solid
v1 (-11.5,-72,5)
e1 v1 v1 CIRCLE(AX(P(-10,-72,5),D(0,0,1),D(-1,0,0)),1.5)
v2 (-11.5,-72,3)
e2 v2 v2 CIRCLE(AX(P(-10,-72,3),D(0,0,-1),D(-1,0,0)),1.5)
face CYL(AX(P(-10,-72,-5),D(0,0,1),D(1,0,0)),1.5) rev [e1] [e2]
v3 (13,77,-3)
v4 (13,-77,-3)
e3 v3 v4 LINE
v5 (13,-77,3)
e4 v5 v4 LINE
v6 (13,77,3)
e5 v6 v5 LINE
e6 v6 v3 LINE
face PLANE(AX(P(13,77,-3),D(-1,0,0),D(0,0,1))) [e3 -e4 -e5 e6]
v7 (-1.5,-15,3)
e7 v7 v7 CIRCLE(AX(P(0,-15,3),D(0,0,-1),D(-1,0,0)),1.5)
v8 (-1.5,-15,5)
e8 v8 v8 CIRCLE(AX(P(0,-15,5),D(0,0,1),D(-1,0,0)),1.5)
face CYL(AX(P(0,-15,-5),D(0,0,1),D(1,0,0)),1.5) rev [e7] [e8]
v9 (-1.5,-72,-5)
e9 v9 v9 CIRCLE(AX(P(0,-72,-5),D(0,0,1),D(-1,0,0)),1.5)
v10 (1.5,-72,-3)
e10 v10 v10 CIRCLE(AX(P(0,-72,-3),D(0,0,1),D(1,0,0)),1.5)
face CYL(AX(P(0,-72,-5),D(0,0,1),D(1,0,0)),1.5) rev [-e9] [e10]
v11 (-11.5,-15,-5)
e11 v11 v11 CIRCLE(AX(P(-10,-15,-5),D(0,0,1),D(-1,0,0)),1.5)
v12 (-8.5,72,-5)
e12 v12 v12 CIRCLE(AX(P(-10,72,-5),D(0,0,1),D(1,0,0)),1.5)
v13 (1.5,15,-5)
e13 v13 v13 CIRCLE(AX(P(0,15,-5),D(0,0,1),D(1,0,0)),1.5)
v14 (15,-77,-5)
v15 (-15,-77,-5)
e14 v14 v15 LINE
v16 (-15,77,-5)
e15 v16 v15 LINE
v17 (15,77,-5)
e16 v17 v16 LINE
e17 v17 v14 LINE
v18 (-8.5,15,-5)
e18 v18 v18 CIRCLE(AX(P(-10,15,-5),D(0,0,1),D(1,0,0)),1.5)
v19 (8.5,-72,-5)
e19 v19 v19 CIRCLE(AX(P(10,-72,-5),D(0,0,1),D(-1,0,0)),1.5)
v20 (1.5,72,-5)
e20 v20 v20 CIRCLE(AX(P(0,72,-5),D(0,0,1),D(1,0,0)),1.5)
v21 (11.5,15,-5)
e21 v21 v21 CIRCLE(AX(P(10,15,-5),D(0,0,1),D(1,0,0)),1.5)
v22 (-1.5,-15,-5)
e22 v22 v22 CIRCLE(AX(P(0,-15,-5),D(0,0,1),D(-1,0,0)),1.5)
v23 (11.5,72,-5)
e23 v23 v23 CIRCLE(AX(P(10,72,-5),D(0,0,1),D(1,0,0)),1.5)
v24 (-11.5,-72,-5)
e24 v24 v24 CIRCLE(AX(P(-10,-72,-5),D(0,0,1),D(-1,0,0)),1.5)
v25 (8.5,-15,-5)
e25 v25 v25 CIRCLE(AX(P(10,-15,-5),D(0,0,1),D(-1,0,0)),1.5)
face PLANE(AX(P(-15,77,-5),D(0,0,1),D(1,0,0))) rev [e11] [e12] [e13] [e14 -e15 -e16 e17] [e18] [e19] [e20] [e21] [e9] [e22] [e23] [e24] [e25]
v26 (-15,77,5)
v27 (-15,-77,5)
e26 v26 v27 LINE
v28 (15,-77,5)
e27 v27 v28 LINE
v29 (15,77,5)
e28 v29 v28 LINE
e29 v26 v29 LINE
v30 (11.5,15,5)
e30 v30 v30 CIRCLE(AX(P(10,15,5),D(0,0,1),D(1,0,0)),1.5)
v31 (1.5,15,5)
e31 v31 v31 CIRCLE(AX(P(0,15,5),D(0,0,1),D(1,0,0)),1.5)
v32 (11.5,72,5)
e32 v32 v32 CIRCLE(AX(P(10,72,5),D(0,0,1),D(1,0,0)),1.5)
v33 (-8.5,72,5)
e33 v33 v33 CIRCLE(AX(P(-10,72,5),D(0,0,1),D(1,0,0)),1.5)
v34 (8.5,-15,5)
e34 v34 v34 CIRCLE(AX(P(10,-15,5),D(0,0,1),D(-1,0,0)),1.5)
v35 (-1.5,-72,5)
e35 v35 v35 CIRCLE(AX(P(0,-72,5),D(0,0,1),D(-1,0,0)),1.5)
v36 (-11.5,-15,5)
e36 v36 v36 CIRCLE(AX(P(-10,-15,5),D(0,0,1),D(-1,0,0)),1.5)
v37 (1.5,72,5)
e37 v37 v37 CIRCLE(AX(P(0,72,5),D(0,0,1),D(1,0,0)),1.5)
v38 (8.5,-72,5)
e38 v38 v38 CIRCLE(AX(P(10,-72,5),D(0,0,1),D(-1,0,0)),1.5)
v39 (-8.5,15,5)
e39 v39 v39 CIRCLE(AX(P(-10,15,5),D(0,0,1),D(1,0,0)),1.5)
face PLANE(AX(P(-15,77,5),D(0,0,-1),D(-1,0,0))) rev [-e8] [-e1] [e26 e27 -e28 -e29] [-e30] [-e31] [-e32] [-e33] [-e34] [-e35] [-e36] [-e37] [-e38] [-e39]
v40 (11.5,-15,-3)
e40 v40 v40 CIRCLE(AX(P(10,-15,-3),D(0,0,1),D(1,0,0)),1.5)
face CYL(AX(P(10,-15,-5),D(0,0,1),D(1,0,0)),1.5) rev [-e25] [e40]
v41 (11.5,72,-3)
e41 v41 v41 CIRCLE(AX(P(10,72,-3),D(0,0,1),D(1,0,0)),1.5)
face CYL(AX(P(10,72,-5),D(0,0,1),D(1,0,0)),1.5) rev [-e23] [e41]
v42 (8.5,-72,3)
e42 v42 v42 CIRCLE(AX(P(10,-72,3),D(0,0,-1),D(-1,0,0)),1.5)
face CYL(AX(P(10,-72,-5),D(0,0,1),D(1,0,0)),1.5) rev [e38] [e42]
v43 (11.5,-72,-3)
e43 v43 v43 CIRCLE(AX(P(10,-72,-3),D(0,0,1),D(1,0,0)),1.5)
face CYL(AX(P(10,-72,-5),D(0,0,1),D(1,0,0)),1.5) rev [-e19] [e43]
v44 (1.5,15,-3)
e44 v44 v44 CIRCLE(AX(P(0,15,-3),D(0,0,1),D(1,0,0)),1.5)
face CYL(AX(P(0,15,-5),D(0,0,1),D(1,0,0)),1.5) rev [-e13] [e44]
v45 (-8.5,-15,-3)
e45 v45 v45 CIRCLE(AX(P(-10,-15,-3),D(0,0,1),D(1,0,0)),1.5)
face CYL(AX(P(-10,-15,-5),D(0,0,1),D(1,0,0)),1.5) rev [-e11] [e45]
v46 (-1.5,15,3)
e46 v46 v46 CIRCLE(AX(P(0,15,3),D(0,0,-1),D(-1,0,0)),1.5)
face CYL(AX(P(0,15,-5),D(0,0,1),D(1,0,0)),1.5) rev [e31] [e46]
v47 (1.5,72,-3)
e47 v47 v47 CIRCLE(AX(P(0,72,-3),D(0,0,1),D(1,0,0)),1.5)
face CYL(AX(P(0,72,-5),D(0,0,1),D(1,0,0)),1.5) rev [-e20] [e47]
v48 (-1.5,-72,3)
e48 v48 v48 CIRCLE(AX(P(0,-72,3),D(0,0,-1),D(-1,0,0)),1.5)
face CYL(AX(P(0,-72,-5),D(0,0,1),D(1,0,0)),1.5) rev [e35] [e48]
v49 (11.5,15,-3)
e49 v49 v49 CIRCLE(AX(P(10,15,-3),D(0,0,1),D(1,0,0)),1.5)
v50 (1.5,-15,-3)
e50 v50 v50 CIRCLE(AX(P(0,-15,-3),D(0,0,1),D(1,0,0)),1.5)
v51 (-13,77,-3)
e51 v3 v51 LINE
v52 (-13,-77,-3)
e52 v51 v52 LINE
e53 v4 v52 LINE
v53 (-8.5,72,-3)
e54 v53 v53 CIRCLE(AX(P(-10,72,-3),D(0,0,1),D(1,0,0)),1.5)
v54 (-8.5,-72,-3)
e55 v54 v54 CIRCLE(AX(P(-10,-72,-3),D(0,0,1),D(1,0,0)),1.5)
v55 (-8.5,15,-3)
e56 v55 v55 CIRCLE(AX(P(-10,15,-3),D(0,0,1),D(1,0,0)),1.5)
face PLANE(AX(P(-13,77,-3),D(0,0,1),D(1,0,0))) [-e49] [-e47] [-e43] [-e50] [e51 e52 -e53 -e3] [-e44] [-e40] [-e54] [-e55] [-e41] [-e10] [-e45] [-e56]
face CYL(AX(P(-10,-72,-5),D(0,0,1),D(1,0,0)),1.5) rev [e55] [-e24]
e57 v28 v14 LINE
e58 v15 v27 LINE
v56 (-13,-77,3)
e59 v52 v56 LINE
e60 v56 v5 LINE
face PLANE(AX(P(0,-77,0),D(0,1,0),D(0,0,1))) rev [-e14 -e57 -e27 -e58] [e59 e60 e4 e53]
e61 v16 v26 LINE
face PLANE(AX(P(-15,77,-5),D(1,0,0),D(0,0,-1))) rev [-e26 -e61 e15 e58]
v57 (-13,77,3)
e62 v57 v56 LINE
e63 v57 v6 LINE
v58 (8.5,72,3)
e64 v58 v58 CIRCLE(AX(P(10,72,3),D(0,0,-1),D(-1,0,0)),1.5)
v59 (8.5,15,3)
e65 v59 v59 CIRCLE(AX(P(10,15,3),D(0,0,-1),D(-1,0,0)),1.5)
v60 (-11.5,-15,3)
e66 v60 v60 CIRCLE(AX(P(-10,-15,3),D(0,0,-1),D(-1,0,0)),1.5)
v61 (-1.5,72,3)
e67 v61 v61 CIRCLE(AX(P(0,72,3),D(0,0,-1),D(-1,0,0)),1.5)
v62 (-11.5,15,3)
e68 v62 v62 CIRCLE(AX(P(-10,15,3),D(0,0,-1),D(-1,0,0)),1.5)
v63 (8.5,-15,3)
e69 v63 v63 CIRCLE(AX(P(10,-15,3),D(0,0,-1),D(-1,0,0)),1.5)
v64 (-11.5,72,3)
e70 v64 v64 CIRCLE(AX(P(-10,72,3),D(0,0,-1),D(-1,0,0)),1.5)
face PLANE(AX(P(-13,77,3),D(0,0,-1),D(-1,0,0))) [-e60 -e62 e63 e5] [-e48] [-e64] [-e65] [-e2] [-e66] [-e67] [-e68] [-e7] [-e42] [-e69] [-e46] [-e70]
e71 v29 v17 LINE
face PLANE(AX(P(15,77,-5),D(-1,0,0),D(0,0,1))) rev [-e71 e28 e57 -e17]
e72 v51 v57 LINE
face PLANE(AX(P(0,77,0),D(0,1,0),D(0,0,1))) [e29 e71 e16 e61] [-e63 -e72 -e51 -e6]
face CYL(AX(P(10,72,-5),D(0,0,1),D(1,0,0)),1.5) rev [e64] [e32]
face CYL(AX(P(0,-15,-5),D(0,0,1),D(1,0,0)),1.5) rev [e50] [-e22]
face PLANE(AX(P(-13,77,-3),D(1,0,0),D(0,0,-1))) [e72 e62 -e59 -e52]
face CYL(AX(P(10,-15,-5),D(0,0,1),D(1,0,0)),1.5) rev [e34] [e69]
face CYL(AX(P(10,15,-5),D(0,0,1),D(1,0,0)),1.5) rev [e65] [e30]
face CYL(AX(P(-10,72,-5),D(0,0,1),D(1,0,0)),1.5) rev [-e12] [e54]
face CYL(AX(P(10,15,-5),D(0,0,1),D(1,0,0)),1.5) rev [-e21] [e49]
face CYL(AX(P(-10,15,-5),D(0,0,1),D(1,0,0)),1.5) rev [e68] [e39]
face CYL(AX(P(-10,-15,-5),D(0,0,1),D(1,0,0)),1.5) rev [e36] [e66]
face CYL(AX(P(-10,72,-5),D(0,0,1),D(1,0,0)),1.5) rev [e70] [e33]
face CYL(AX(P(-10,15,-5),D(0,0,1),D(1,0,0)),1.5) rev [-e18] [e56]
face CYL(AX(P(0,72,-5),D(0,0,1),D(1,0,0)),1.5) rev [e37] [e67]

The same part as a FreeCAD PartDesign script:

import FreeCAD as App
import Part
import Sketcher
from FreeCAD import Vector
Q = App.Units.Quantity


def add_polygon(sketch, points):
    """Adds a closed chain of lines whose ends are joined by coincident constraints."""
    first, n = sketch.GeometryCount, len(points)
    for a, b in zip(points, points[1:] + points[:1]):
        sketch.addGeometry(Part.LineSegment(App.Vector(*a, 0), App.Vector(*b, 0)), False)
    for i in range(n):
        sketch.addConstraint(Sketcher.Constraint("Coincident", first + i, 2, first + (i + 1) % n, 1))

doc = App.newDocument("Part")
params = doc.addObject("Spreadsheet::Sheet", "Params")
for row, (alias, value) in enumerate([
    ("sketch1_width", "30 mm"),
    ("sketch1_width2", "26 mm"),
    ("sketch1_height", "10 mm"),
    ("sketch1_height2", "6 mm"),
    ("pad1_length", "154 mm"),
    ("sketch2_diameter", "3 mm"),
], start=1):
    params.set(f"A{row}", alias)
    params.set(f"B{row}", "=" + value)
    params.setAlias(f"B{row}", alias)

body = doc.addObject("PartDesign::Body", "Body")

# Sketch on XZ plane
sketch1 = doc.addObject("Sketcher::SketchObject", "Sketch")
body.addObject(sketch1)
sketch1.AttachmentSupport = (doc.XZ_Plane, [""])
sketch1.MapMode = "FlatFace"
add_polygon(sketch1, [(-15, -5), (-15, 5), (15, 5), (15, -5)])  # lines 0-3
add_polygon(sketch1, [(13, 3), (-13, 3), (-13, -3), (13, -3)])  # lines 4-7
sketch1.addConstraint([
    Sketcher.Constraint("Vertical", 0),
    Sketcher.Constraint("Horizontal", 1),
    Sketcher.Constraint("Vertical", 2),
    Sketcher.Constraint("Horizontal", 3),
    Sketcher.Constraint("Horizontal", 4),
    Sketcher.Constraint("Vertical", 5),
    Sketcher.Constraint("Horizontal", 6),
    Sketcher.Constraint("Vertical", 7),
    Sketcher.Constraint("Symmetric", 0, 2, 2, 2, -1, 1),
    Sketcher.Constraint("Symmetric", 4, 2, 6, 2, -1, 1),
    Sketcher.Constraint("DistanceX", 1, 1, 1, 2, Q("30 mm")),
    Sketcher.Constraint("DistanceX", 4, 2, 4, 1, Q("26 mm")),
    Sketcher.Constraint("DistanceY", 0, 1, 0, 2, Q("10 mm")),
    Sketcher.Constraint("DistanceY", 5, 2, 5, 1, Q("6 mm")),
])
sketch1.setExpression("Constraints[18]", "Params.sketch1_width")
sketch1.setExpression("Constraints[19]", "Params.sketch1_width2")
sketch1.setExpression("Constraints[20]", "Params.sketch1_height")
sketch1.setExpression("Constraints[21]", "Params.sketch1_height2")
pad1 = doc.addObject("PartDesign::Pad", "Pad")
body.addObject(pad1)
pad1.Profile = sketch1
pad1.setExpression("Length", "Params.pad1_length")
pad1.Midplane = True

# Sketch on XY plane
sketch2 = doc.addObject("Sketcher::SketchObject", "Sketch001")
body.addObject(sketch2)
sketch2.AttachmentSupport = (doc.XY_Plane, [""])
sketch2.MapMode = "FlatFace"
sketch2.AttachmentOffset = App.Placement(Vector(0, 0, 5), App.Rotation())
sketch2.addGeometry([
    Part.Circle(Vector(10, 15, 0), Vector(0, 0, 1), 1.5),  # 0
    Part.Circle(Vector(-10, 15, 0), Vector(0, 0, 1), 1.5),  # 1
    Part.Circle(Vector(0, 15, 0), Vector(0, 0, 1), 1.5),  # 2
    Part.Circle(Vector(10, -15, 0), Vector(0, 0, 1), 1.5),  # 3
    Part.Circle(Vector(0, -15, 0), Vector(0, 0, 1), 1.5),  # 4
    Part.Circle(Vector(-10, -15, 0), Vector(0, 0, 1), 1.5),  # 5
    Part.Circle(Vector(10, 72, 0), Vector(0, 0, 1), 1.5),  # 6
    Part.Circle(Vector(-10, 72, 0), Vector(0, 0, 1), 1.5),  # 7
    Part.Circle(Vector(0, 72, 0), Vector(0, 0, 1), 1.5),  # 8
    Part.Circle(Vector(-10, -72, 0), Vector(0, 0, 1), 1.5),  # 9
    Part.Circle(Vector(0, -72, 0), Vector(0, 0, 1), 1.5),  # 10
    Part.Circle(Vector(10, -72, 0), Vector(0, 0, 1), 1.5),  # 11
], False)
sketch2.addConstraint([
    Sketcher.Constraint("Equal", 0, 1),
    Sketcher.Constraint("Equal", 1, 2),
    Sketcher.Constraint("Equal", 2, 3),
    Sketcher.Constraint("Equal", 3, 4),
    Sketcher.Constraint("Equal", 4, 5),
    Sketcher.Constraint("Equal", 5, 6),
    Sketcher.Constraint("Equal", 6, 7),
    Sketcher.Constraint("Equal", 7, 8),
    Sketcher.Constraint("Equal", 8, 9),
    Sketcher.Constraint("Equal", 9, 10),
    Sketcher.Constraint("Equal", 10, 11),
    Sketcher.Constraint("Symmetric", 1, 3, 3, 3, -1, 1),
    Sketcher.Constraint("Symmetric", 2, 3, 4, 3, -1, 1),
    Sketcher.Constraint("Symmetric", 0, 3, 5, 3, -1, 1),
    Sketcher.Constraint("Symmetric", 6, 3, 9, 3, -1, 1),
    Sketcher.Constraint("Symmetric", 8, 3, 10, 3, -1, 1),
    Sketcher.Constraint("Symmetric", 7, 3, 11, 3, -1, 1),
    Sketcher.Constraint("Symmetric", 0, 3, 1, 3, -2),
    Sketcher.Constraint("Symmetric", 6, 3, 7, 3, -2),
    Sketcher.Constraint("PointOnObject", 2, 3, -2),
    Sketcher.Constraint("PointOnObject", 8, 3, -2),
    Sketcher.Constraint("Horizontal", 1, 3, 2, 3),
    Sketcher.Constraint("Horizontal", 7, 3, 8, 3),
    Sketcher.Constraint("Vertical", 3, 3, 6, 3),
    Sketcher.Constraint("Diameter", 0, Q("3 mm")),
    Sketcher.Constraint("DistanceX", -1, 1, 0, 3, Q("10 mm")),
    Sketcher.Constraint("DistanceY", -1, 1, 0, 3, Q("15 mm")),
    Sketcher.Constraint("DistanceY", -1, 1, 6, 3, Q("72 mm")),
])
sketch2.setExpression("Constraints[24]", "Params.sketch2_diameter")
pocket1 = doc.addObject("PartDesign::Pocket", "Pocket")
body.addObject(pocket1)
pocket1.Profile = sketch2
pocket1.Type = "ThroughAll"

doc.recompute()
